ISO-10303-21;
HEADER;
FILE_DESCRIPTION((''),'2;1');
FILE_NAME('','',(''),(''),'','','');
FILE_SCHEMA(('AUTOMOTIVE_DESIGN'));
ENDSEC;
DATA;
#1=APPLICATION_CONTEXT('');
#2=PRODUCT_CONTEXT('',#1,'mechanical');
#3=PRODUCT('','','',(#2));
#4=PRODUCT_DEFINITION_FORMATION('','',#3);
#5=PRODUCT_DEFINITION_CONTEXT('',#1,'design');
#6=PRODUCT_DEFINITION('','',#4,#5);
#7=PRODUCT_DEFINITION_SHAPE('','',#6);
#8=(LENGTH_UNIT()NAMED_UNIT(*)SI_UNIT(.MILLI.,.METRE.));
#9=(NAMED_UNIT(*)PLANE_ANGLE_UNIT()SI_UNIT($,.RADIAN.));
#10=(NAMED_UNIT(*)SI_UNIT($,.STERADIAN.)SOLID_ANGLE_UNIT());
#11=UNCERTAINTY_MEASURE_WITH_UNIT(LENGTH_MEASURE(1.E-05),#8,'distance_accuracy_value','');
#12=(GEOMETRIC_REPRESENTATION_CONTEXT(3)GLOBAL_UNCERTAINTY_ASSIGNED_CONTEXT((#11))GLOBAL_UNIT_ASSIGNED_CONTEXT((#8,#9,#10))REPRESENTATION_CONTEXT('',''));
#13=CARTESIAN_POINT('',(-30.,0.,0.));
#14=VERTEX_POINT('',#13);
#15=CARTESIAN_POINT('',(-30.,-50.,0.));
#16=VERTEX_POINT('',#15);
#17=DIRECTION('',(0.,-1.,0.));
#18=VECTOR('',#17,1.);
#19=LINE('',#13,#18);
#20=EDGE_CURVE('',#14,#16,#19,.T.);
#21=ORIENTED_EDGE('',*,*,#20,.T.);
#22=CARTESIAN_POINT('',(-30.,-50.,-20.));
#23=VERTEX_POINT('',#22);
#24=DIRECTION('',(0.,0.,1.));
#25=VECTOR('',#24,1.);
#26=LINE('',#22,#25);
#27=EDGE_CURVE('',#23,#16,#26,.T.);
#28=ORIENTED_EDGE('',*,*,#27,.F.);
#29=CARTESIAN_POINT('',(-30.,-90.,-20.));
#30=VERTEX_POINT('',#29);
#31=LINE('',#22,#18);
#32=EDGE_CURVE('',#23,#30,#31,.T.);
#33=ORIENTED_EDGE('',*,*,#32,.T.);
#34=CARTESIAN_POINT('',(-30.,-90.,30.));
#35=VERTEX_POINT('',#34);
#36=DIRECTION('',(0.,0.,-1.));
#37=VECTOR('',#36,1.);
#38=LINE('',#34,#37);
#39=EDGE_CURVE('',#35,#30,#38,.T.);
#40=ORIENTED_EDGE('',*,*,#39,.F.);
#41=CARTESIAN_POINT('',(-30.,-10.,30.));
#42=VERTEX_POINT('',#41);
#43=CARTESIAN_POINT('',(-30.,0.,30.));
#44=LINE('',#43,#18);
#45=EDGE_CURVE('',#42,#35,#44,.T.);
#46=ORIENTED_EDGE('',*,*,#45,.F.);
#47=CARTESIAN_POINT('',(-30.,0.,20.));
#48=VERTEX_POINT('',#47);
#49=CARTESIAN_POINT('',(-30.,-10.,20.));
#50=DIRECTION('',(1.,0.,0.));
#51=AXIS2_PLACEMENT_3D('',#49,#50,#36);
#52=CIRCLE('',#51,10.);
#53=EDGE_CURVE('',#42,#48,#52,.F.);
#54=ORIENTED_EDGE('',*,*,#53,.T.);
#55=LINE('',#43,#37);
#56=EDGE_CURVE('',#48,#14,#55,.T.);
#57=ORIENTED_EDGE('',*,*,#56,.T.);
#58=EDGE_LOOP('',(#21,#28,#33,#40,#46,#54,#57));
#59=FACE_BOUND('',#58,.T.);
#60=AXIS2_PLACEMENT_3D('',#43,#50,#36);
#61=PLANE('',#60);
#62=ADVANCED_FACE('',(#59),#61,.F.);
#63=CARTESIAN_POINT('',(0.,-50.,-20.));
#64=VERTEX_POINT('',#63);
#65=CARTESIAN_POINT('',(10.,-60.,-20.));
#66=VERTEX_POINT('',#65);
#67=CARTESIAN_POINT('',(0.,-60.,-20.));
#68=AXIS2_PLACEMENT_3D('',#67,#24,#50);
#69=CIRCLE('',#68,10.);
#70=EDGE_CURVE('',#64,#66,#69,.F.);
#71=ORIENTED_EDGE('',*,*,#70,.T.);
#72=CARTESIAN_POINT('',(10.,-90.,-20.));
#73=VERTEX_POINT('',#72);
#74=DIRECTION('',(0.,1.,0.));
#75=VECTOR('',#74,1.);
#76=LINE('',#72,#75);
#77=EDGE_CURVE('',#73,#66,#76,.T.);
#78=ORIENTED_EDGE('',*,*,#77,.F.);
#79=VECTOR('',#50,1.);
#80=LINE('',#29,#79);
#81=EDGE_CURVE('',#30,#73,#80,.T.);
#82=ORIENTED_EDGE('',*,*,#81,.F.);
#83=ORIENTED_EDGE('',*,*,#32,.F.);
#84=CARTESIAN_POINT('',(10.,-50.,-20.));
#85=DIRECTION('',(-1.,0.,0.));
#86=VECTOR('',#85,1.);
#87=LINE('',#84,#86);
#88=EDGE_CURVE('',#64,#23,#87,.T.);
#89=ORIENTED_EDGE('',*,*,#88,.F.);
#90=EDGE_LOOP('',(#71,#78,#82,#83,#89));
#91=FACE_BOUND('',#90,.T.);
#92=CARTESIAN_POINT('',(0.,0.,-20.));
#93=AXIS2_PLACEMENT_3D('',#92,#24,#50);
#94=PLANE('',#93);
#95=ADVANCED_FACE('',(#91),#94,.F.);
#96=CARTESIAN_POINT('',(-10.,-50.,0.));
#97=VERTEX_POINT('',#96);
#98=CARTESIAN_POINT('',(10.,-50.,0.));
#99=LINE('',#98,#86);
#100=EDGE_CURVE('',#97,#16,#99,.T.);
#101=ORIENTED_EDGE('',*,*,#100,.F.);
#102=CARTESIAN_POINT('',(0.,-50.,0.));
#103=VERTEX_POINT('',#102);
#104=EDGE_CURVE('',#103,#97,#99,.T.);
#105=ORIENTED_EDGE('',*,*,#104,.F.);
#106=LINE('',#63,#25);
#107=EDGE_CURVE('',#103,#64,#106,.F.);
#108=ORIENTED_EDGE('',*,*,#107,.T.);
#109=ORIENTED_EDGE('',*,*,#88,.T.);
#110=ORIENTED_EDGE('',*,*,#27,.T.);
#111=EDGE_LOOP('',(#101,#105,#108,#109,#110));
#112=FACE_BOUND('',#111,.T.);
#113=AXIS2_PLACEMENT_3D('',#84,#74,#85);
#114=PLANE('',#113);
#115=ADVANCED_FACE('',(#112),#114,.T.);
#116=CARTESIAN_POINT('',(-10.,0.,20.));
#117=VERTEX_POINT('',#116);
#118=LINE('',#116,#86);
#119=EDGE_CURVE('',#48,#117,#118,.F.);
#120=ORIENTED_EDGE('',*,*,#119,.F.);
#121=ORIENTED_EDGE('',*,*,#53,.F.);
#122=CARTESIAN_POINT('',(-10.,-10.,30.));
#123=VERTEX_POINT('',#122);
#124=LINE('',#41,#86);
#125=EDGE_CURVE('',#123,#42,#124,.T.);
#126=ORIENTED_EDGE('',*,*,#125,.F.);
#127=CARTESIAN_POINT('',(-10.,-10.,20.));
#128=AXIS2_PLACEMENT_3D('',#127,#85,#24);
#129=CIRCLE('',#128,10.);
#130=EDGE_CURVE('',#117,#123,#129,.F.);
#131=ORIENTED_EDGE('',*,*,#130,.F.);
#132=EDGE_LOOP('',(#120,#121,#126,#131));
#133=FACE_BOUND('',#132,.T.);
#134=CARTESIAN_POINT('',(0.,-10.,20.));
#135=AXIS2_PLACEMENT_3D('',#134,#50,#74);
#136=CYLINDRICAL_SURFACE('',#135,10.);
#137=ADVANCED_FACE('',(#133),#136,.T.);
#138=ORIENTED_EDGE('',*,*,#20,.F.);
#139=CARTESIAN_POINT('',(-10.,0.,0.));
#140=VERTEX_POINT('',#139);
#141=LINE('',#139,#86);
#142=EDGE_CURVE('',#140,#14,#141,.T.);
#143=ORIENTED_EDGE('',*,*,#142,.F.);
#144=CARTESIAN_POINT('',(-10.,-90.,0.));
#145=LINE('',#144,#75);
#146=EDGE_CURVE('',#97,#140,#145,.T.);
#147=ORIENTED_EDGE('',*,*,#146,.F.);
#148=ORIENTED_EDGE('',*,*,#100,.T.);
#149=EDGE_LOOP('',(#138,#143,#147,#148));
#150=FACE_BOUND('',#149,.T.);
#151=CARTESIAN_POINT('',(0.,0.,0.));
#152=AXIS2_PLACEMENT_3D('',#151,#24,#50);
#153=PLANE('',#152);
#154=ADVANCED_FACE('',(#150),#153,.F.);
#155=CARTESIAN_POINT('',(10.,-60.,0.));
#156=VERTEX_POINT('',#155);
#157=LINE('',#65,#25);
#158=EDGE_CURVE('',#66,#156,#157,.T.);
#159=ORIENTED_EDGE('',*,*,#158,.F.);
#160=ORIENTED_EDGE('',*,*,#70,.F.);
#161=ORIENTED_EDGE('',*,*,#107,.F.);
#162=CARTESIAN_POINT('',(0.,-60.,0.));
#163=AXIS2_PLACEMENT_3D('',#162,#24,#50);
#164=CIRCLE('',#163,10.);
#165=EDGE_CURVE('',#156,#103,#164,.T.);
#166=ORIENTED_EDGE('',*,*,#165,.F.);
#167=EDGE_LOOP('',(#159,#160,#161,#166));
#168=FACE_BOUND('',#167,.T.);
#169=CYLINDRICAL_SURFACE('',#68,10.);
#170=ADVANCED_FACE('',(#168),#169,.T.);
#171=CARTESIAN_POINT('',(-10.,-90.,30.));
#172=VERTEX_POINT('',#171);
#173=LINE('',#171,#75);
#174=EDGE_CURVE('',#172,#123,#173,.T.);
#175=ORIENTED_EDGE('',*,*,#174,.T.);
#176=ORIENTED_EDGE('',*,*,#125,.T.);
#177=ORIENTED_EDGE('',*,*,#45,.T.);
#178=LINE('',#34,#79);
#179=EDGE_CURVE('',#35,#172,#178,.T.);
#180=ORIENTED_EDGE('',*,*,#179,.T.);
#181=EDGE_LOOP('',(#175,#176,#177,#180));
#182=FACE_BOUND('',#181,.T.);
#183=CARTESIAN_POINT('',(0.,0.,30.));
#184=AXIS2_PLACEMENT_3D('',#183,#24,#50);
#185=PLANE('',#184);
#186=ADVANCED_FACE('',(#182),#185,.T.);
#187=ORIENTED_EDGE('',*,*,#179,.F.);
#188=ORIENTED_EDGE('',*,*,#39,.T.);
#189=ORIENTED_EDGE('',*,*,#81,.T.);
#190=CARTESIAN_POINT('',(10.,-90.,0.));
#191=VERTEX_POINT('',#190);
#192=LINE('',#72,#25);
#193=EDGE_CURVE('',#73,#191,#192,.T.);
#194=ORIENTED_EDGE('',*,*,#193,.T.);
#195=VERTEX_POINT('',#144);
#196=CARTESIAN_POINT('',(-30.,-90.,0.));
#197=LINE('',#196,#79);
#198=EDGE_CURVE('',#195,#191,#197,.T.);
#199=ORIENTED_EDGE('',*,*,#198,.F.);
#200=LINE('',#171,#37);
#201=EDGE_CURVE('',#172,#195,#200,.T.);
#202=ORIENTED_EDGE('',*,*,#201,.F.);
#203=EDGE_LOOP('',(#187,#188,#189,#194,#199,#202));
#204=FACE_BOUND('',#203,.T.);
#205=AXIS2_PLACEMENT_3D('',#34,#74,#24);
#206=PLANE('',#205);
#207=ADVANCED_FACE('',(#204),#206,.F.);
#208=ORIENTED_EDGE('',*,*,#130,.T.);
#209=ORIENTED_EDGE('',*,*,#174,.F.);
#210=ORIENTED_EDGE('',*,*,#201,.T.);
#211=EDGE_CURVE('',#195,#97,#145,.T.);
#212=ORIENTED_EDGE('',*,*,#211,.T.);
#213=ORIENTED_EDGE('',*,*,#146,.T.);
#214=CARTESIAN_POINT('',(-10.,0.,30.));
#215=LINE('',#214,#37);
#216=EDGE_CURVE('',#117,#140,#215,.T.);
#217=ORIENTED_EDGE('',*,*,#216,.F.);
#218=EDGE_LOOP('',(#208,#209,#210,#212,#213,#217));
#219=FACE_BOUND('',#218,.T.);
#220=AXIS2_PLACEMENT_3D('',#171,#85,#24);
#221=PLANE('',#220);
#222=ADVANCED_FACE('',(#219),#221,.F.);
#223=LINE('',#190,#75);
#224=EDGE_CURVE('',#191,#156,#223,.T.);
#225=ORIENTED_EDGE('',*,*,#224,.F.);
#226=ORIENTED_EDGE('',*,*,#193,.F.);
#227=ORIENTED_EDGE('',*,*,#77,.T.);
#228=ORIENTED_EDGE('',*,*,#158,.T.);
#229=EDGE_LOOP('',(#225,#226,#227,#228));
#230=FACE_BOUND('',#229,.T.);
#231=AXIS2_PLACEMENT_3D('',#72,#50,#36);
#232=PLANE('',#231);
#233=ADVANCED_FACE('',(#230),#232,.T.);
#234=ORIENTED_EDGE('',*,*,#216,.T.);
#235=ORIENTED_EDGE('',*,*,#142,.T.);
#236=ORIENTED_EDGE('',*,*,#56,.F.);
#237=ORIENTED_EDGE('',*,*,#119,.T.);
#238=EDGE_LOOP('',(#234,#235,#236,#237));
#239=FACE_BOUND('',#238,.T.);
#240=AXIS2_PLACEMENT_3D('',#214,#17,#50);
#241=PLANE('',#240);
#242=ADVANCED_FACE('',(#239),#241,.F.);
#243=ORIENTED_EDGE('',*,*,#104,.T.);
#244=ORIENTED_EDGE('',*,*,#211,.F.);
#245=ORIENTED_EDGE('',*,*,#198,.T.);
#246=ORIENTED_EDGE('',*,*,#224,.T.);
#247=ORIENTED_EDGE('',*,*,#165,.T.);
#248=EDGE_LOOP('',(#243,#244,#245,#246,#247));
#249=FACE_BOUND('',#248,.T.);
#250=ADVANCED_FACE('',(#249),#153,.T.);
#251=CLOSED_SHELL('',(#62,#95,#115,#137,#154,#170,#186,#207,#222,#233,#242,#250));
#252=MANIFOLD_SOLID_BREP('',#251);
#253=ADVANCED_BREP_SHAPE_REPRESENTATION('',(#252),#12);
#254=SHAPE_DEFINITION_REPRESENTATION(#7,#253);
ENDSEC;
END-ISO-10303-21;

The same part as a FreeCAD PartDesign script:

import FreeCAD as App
import Part
import Sketcher

V = App.Vector


def edges_at(feature, points):
    """Names of the edges that pass closest to the given points."""
    edges = feature.Shape.Edges
    near = lambda p: min(range(len(edges)), key=lambda i: edges[i].distToShape(Part.Vertex(*p))[0])
    return sorted({f"Edge{near(p) + 1}" for p in points})


def add_polygon(sketch, points):
    """Adds a closed chain of lines whose ends are joined by coincident constraints."""
    first, n = sketch.GeometryCount, len(points)
    for a, b in zip(points, points[1:] + points[:1]):
        sketch.addGeometry(Part.LineSegment(App.Vector(*a, 0), App.Vector(*b, 0)), False)
    for i in range(n):
        sketch.addConstraint(Sketcher.Constraint("Coincident", first + i, 2, first + (i + 1) % n, 1))

doc = App.newDocument("Part")
body = doc.addObject("PartDesign::Body", "Body")

# Sketch on XY plane
sketch1 = body.newObject("Sketcher::SketchObject", "Sketch")
sketch1.AttachmentSupport = (doc.getObject("XY_Plane"), [""])
sketch1.MapMode = "FlatFace"
add_polygon(sketch1, [(-30, 0), (-30, -90), (-10, -90), (-10, 0)])  # lines 0-3
sketch1.addConstraint([
    Sketcher.Constraint("Vertical", 0),
    Sketcher.Constraint("Horizontal", 1),
    Sketcher.Constraint("Vertical", 2),
    Sketcher.Constraint("Horizontal", 3),
    Sketcher.Constraint("PointOnObject", 2, 2, -1),
    Sketcher.Constraint("DistanceX", 1, 1, 1, 2, 20.0),
    Sketcher.Constraint("DistanceY", 0, 2, 0, 1, 90.0),
    Sketcher.Constraint("DistanceX", 0, 2, -1, 1, 30.0),
])
pad1 = body.newObject("PartDesign::Pad", "Pad")
pad1.Profile = sketch1
pad1.Length = 30

# Sketch on XY plane
sketch2 = body.newObject("Sketcher::SketchObject", "Sketch001")
sketch2.AttachmentSupport = (doc.getObject("XY_Plane"), [""])
sketch2.MapMode = "FlatFace"
add_polygon(sketch2, [(-30, -50), (-30, -90), (10, -90), (10, -50)])  # lines 0-3
sketch2.addConstraint([
    Sketcher.Constraint("Vertical", 0),
    Sketcher.Constraint("Horizontal", 1),
    Sketcher.Constraint("Vertical", 2),
    Sketcher.Constraint("Horizontal", 3),
    Sketcher.Constraint("Equal", 3, 0),
    Sketcher.Constraint("DistanceX", 1, 1, 1, 2, 40.0),
    Sketcher.Constraint("DistanceX", 0, 2, -1, 1, 30.0),
    Sketcher.Constraint("DistanceY", 0, 2, -1, 1, 90.0),
])
pad2 = body.newObject("PartDesign::Pad", "Pad001")
pad2.Profile = sketch2
pad2.Length = 20
pad2.Reversed = True
doc.recompute()

fillet = body.newObject("PartDesign::Fillet", "Fillet")
fillet.Base = (pad2, edges_at(pad2, [(10, -50, -10), (-20, 0, 30)]))
fillet.Radius = 10

doc.recompute()
